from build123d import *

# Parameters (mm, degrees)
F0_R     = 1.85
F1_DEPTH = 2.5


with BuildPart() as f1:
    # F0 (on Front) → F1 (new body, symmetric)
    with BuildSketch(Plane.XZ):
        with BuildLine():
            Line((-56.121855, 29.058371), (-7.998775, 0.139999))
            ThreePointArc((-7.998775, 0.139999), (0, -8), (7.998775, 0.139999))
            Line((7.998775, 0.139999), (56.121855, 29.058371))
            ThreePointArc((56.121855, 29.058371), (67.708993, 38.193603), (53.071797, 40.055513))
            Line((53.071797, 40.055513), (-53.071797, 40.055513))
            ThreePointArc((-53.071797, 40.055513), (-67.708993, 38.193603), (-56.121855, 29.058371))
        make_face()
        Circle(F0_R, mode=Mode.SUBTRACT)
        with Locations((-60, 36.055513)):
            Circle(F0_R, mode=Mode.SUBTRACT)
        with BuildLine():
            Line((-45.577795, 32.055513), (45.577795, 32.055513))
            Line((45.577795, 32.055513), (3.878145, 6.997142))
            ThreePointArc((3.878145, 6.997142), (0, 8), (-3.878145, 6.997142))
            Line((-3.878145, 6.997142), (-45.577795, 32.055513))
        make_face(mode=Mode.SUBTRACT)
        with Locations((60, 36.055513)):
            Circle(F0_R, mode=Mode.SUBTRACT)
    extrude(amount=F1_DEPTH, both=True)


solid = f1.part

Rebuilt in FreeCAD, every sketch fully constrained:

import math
import FreeCAD as App
import Part
import Sketcher
from FreeCAD import Vector
Q = App.Units.Quantity

doc = App.newDocument("Part")
body = doc.addObject("PartDesign::Body", "Body")

# Sketch on XZ plane
sketch1 = body.newObject("Sketcher::SketchObject", "Sketch")
sketch1.AttachmentSupport = (doc.getObject("XZ_Plane"), [""])
sketch1.MapMode = "FlatFace"
sketch1.addGeometry([
    Part.LineSegment(Vector(-56.1, 29.1, 0), Vector(-8, 0.1, 0)),  # 0
    Part.ArcOfCircle(Part.Circle(Vector(0, 0, 0), Vector(0, 0, 1), 8), math.radians(179), math.radians(361)),  # 1
    Part.LineSegment(Vector(8, 0.1, 0), Vector(56.1, 29.1, 0)),  # 2
    Part.ArcOfCircle(Part.Circle(Vector(60, 36.1, 0), Vector(0, 0, 1), 8), math.radians(-119), math.radians(150)),  # 3
    Part.LineSegment(Vector(53.1, 40.1, 0), Vector(-53.1, 40.1, 0)),  # 4
    Part.ArcOfCircle(Part.Circle(Vector(-60, 36.1, 0), Vector(0, 0, 1), 8), math.radians(30), math.radians(299)),  # 5
    Part.Circle(Vector(0, 0, 0), Vector(0, 0, 1), 1.9),  # 6
    Part.Circle(Vector(-60, 36.1, 0), Vector(0, 0, 1), 1.9),  # 7
    Part.LineSegment(Vector(-3.9, 7, 0), Vector(-45.6, 32.1, 0)),  # 8
    Part.LineSegment(Vector(-45.6, 32.1, 0), Vector(45.6, 32.1, 0)),  # 9
    Part.LineSegment(Vector(45.6, 32.1, 0), Vector(3.9, 7, 0)),  # 10
    Part.ArcOfCircle(Part.Circle(Vector(0, 0, 0), Vector(0, 0, 1), 8), math.radians(61), math.radians(119)),  # 11
    Part.Circle(Vector(60, 36.1, 0), Vector(0, 0, 1), 1.9),  # 12
], False)
sketch1.addConstraint([
    Sketcher.Constraint("Coincident", 0, 2, 1, 1),
    Sketcher.Constraint("Coincident", 1, 2, 2, 1),
    Sketcher.Constraint("Coincident", 2, 2, 3, 1),
    Sketcher.Constraint("Coincident", 3, 2, 4, 1),
    Sketcher.Constraint("Coincident", 4, 2, 5, 1),
    Sketcher.Constraint("Coincident", 5, 2, 0, 1),
    Sketcher.Constraint("Coincident", 8, 2, 9, 1),
    Sketcher.Constraint("Coincident", 9, 2, 10, 1),
    Sketcher.Constraint("Coincident", 10, 2, 11, 1),
    Sketcher.Constraint("Coincident", 11, 2, 8, 1),
    Sketcher.Constraint("Horizontal", 4),
    Sketcher.Constraint("Horizontal", 9),
    Sketcher.Constraint("Coincident", 1, 3, -1, 1),
    Sketcher.Constraint("Coincident", 6, 3, -1, 1),
    Sketcher.Constraint("Coincident", 11, 3, -1, 1),
    Sketcher.Constraint("Coincident", 7, 3, 5, 3),
    Sketcher.Constraint("Coincident", 12, 3, 3, 3),
    Sketcher.Constraint("Equal", 1, 3),
    Sketcher.Constraint("Equal", 3, 5),
    Sketcher.Constraint("Equal", 6, 7),
    Sketcher.Constraint("Equal", 7, 12),
    Sketcher.Constraint("Symmetric", 3, 3, 5, 3, -2),
    Sketcher.Constraint("Parallel", 0, 8),
    Sketcher.Constraint("Parallel", 2, 10),
    Sketcher.Constraint("Horizontal", 0, 2, 1, 2),
    Sketcher.Constraint("Horizontal", 2, 2, 5, 2),
    Sketcher.Constraint("Horizontal", 10, 2, 11, 2),
    Sketcher.Constraint("Radius", 1, Q("8 mm")),
    Sketcher.Constraint("Diameter", 6, Q("3.7 mm")),
    Sketcher.Constraint("DistanceX", -1, 1, 3, 3, Q("60 mm")),
    Sketcher.Constraint("DistanceY", 12, 3, 3, 2, Q("4 mm")),
    Sketcher.Constraint("DistanceY", 8, 2, 4, 2, Q("8 mm")),
    Sketcher.Constraint("DistanceY", -1, 1, 0, 2, Q("0.139999 mm")),
    Sketcher.Constraint("Radius", 11, Q("8.000002 mm")),
    Sketcher.Constraint("DistanceX", 4, 2, 8, 2, Q("7.494002 mm")),
    Sketcher.Constraint("Distance", 8, Q("48.649592 mm")),
    Sketcher.Constraint("DistanceY", -1, 1, 2, 2, Q("29.058371 mm")),
])
pad1 = body.newObject("PartDesign::Pad", "Pad")
pad1.Profile = sketch1
pad1.Length = 5
pad1.Midplane = True

doc.recompute()
